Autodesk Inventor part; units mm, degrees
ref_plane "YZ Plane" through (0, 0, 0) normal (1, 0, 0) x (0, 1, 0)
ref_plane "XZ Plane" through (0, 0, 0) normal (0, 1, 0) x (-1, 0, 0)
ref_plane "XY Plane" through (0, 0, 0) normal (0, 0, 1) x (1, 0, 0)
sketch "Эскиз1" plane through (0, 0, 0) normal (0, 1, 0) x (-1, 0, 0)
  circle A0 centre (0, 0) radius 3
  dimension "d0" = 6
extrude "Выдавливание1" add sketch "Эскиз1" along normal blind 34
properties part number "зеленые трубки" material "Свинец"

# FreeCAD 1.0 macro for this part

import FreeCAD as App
import Part
import Sketcher

V = App.Vector
Q = App.Units.Quantity

doc = App.newDocument("Part")
body = doc.addObject("PartDesign::Body", "Body")

# Sketch on XZ plane
sketch1 = body.newObject("Sketcher::SketchObject", "Sketch")
sketch1.AttachmentSupport = (doc.getObject("XZ_Plane"), [""])
sketch1.MapMode = "FlatFace"
sketch1.addGeometry(Part.Circle(V(0, 0, 0), V(0, 0, 1), 3), False)
sketch1.addConstraint(Sketcher.Constraint("Coincident", 0, 3, -1, 1))
sketch1.addConstraint(Sketcher.Constraint("Diameter", 0, Q("6 mm")))
pad1 = body.newObject("PartDesign::Pad", "Pad")
pad1.Profile = sketch1
pad1.Length = 34
pad1.Reversed = True

doc.recompute()
